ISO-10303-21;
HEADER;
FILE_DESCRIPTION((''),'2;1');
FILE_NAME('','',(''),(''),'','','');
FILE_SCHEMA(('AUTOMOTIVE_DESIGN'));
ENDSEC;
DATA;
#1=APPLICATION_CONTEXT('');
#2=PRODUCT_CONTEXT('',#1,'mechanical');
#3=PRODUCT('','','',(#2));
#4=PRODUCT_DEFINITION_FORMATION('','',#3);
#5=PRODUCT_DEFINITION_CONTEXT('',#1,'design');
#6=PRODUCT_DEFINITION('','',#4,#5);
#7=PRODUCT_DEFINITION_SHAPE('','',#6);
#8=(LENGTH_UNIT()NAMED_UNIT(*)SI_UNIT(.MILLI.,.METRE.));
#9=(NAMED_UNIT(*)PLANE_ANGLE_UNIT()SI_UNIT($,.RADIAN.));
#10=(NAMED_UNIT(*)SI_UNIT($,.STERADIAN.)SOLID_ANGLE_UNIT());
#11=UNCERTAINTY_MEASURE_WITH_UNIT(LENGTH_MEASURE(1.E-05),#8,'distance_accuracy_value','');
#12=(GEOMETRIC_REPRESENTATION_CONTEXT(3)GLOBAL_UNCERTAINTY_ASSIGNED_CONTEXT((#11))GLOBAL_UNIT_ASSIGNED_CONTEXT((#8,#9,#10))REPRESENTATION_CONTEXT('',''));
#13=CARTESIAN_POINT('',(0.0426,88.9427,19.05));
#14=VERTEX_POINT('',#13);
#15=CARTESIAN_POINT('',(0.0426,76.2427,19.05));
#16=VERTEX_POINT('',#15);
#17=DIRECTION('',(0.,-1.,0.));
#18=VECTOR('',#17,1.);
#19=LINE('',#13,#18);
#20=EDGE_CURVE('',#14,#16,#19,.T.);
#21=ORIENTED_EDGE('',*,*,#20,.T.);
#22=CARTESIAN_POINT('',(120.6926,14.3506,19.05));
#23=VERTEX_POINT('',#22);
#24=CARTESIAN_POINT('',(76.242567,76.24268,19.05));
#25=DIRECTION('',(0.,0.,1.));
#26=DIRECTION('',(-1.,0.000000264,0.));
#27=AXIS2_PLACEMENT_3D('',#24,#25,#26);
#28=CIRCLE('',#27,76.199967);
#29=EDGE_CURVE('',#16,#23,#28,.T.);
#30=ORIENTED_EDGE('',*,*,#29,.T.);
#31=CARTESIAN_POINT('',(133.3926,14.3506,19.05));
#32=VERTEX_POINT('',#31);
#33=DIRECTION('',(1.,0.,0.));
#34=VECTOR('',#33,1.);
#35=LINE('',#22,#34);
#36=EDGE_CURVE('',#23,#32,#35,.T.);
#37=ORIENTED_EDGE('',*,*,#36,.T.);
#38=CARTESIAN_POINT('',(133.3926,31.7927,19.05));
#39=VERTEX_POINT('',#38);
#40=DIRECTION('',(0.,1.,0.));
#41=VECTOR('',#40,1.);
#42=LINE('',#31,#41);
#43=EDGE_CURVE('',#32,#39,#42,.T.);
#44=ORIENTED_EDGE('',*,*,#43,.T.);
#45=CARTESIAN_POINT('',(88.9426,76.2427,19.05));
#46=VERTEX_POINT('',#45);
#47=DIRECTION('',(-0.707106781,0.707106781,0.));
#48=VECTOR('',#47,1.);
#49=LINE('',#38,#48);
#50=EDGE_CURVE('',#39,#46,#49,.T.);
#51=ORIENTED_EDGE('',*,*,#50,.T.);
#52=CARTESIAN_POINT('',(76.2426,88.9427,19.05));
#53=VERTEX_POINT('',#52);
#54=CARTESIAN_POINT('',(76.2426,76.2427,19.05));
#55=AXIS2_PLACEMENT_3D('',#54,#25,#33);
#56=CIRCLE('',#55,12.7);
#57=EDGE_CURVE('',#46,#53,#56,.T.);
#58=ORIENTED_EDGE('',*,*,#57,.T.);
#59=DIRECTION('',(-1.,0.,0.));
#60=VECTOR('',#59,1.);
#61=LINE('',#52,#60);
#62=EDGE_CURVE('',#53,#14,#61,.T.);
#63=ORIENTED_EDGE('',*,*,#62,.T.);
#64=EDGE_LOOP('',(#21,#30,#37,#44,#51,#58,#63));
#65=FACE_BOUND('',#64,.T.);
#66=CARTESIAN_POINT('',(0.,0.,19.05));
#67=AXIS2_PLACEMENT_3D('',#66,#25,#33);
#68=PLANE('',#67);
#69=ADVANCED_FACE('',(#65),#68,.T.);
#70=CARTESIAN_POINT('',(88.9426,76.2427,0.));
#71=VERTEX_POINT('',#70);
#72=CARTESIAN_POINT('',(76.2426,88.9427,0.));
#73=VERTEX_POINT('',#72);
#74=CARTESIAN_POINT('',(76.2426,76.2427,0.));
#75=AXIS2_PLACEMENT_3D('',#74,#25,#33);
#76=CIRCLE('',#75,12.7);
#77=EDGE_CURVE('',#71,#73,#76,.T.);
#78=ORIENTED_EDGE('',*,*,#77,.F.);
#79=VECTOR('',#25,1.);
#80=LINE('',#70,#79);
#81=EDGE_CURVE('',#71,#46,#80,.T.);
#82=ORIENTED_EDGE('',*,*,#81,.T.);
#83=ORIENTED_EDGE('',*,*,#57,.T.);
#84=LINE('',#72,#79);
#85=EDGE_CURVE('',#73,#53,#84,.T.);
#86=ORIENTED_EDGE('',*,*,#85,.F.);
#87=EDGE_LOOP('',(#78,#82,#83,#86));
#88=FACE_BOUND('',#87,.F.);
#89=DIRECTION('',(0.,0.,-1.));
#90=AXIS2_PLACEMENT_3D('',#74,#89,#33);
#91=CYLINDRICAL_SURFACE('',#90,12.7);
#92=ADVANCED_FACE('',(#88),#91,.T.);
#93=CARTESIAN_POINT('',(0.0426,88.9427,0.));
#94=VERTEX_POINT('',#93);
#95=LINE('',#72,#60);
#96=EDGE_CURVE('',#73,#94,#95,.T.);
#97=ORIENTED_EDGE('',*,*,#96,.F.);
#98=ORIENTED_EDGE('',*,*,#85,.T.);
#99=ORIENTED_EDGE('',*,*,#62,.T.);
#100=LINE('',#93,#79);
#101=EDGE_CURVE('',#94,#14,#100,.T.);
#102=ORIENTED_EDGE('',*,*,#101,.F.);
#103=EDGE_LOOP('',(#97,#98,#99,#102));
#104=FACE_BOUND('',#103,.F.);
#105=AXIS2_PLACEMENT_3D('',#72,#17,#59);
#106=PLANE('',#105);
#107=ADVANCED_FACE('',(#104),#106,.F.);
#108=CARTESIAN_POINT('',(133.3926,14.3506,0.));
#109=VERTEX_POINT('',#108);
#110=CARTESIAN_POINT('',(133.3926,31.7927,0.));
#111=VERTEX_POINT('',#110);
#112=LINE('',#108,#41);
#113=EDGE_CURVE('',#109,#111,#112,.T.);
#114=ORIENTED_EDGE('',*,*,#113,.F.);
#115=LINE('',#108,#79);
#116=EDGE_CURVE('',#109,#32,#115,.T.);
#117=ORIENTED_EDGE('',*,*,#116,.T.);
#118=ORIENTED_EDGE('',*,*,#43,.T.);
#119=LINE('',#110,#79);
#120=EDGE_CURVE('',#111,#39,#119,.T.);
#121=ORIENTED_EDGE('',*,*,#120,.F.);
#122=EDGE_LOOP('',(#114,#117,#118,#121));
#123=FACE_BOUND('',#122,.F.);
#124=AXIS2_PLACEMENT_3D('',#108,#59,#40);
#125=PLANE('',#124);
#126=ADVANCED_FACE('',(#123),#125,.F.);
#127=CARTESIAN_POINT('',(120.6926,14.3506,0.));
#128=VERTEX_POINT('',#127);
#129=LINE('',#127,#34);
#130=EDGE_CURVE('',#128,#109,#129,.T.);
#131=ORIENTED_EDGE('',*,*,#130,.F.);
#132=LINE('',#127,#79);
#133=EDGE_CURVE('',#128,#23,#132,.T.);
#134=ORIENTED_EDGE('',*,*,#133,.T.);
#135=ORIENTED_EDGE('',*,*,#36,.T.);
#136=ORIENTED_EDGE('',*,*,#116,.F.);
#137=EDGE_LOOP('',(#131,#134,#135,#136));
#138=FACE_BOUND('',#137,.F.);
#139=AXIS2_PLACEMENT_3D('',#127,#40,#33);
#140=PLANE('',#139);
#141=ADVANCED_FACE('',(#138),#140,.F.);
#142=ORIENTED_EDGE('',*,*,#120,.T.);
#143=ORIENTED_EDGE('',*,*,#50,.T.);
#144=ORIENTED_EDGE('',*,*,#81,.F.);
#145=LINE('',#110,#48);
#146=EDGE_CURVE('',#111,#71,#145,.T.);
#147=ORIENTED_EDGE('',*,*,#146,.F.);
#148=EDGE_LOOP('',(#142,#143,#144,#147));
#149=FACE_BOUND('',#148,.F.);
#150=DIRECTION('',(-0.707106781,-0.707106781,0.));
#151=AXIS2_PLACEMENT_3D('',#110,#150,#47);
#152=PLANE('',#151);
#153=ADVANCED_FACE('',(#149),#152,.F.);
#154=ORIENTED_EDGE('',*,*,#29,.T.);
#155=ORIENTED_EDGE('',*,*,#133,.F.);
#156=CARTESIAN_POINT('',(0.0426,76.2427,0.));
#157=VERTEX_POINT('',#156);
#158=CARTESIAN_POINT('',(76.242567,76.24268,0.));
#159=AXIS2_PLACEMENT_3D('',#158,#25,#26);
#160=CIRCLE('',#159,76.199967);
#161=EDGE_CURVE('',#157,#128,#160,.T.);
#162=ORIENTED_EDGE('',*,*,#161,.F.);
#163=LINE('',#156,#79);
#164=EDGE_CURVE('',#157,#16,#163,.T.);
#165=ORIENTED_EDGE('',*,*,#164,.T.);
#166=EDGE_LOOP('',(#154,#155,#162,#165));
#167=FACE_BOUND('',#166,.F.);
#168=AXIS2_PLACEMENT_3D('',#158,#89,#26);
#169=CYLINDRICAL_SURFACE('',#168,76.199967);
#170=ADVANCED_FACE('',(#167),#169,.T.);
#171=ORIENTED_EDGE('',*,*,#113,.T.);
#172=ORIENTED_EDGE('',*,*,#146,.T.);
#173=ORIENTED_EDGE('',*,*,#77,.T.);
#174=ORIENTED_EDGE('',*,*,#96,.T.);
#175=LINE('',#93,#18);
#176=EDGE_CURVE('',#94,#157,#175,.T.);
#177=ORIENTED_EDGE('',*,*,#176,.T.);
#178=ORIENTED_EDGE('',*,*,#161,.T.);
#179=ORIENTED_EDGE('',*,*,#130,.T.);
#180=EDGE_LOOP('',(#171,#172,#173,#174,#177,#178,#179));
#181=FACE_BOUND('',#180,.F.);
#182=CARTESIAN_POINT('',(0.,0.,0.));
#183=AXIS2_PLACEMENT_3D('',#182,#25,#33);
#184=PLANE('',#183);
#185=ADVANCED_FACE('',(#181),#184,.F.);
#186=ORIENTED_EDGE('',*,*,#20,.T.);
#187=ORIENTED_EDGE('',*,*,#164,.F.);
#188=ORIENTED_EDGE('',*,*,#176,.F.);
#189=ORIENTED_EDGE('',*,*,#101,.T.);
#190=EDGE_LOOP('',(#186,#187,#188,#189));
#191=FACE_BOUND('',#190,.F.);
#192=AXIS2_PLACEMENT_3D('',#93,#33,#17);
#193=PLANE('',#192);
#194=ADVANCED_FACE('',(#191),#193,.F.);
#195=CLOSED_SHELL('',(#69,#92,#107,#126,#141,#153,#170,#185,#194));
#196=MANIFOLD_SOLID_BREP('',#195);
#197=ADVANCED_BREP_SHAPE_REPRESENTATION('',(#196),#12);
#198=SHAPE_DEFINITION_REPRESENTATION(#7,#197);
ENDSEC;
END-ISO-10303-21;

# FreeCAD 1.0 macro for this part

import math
import FreeCAD as App
import Part
import Sketcher
Q = App.Units.Quantity

doc = App.newDocument("Part")
params = doc.addObject("Spreadsheet::Sheet", "Params")
for row, (alias, value) in enumerate([
    ("sketch1_radius", "3 in"),
    ("sketch1_radius2", "0.5 in"),
    ("sketch1_width", "1.75 in"),
    ("pad1_length", "0.75 in"),
], start=1):
    params.set(f"A{row}", alias)
    params.set(f"B{row}", "=" + value)
    params.setAlias(f"B{row}", alias)

body = doc.addObject("PartDesign::Body", "Body")

# Sketch on XY plane
sketch1 = body.newObject("Sketcher::SketchObject", "Sketch")
sketch1.AttachmentSupport = (doc.getObject("XY_Plane"), [""])
sketch1.MapMode = "FlatFace"
sketch1.addGeometry([
    Part.LineSegment(App.Vector(0, 89, 0), App.Vector(0, 76, 0)),  # 0
    Part.ArcOfCircle(Part.Circle(App.Vector(76, 76, 0), App.Vector(0, 0, 1), 76), math.radians(180), math.radians(306)),  # 1
    Part.LineSegment(App.Vector(121, 14, 0), App.Vector(133, 14, 0)),  # 2
    Part.LineSegment(App.Vector(133, 14, 0), App.Vector(133, 32, 0)),  # 3
    Part.LineSegment(App.Vector(133, 32, 0), App.Vector(89, 76, 0)),  # 4
    Part.ArcOfCircle(Part.Circle(App.Vector(76, 76, 0), App.Vector(0, 0, 1), 13), math.radians(0), math.radians(90)),  # 5
    Part.LineSegment(App.Vector(76, 89, 0), App.Vector(0, 89, 0)),  # 6
], False)
sketch1.addConstraint([
    Sketcher.Constraint("Tangent", 0, 2, 1, 1),
    Sketcher.Constraint("Coincident", 1, 2, 2, 1),
    Sketcher.Constraint("Coincident", 2, 2, 3, 1),
    Sketcher.Constraint("Coincident", 3, 2, 4, 1),
    Sketcher.Constraint("Coincident", 4, 2, 5, 1),
    Sketcher.Constraint("Tangent", 5, 2, 6, 1),
    Sketcher.Constraint("Coincident", 6, 2, 0, 1),
    Sketcher.Constraint("Vertical", 0),
    Sketcher.Constraint("Horizontal", 2),
    Sketcher.Constraint("Vertical", 3),
    Sketcher.Constraint("Horizontal", 6),
    Sketcher.Constraint("Coincident", 5, 3, 1, 3),
    Sketcher.Constraint("Horizontal", 0, 2, 4, 2),
    Sketcher.Constraint("Equal", 2, 0),
    Sketcher.Constraint("Radius", 1, Q("3 in")),
    Sketcher.Constraint("Radius", 5, Q("0.5 in")),
    Sketcher.Constraint("Angle", 4, Q("135 deg")),
    Sketcher.Constraint("DistanceX", 1, 3, 1, 2, Q("1.75 in")),
    Sketcher.Constraint("DistanceX", -1, 1, 1, 3, Q("76.2426 mm")),
    Sketcher.Constraint("DistanceY", -1, 1, 1, 3, Q("76.2427 mm")),
])
sketch1.setExpression("Constraints[14]", "Params.sketch1_radius")
sketch1.setExpression("Constraints[15]", "Params.sketch1_radius2")
sketch1.setExpression("Constraints[17]", "Params.sketch1_width")
pad1 = body.newObject("PartDesign::Pad", "Pad")
pad1.Profile = sketch1
pad1.setExpression("Length", "Params.pad1_length")

doc.recompute()
